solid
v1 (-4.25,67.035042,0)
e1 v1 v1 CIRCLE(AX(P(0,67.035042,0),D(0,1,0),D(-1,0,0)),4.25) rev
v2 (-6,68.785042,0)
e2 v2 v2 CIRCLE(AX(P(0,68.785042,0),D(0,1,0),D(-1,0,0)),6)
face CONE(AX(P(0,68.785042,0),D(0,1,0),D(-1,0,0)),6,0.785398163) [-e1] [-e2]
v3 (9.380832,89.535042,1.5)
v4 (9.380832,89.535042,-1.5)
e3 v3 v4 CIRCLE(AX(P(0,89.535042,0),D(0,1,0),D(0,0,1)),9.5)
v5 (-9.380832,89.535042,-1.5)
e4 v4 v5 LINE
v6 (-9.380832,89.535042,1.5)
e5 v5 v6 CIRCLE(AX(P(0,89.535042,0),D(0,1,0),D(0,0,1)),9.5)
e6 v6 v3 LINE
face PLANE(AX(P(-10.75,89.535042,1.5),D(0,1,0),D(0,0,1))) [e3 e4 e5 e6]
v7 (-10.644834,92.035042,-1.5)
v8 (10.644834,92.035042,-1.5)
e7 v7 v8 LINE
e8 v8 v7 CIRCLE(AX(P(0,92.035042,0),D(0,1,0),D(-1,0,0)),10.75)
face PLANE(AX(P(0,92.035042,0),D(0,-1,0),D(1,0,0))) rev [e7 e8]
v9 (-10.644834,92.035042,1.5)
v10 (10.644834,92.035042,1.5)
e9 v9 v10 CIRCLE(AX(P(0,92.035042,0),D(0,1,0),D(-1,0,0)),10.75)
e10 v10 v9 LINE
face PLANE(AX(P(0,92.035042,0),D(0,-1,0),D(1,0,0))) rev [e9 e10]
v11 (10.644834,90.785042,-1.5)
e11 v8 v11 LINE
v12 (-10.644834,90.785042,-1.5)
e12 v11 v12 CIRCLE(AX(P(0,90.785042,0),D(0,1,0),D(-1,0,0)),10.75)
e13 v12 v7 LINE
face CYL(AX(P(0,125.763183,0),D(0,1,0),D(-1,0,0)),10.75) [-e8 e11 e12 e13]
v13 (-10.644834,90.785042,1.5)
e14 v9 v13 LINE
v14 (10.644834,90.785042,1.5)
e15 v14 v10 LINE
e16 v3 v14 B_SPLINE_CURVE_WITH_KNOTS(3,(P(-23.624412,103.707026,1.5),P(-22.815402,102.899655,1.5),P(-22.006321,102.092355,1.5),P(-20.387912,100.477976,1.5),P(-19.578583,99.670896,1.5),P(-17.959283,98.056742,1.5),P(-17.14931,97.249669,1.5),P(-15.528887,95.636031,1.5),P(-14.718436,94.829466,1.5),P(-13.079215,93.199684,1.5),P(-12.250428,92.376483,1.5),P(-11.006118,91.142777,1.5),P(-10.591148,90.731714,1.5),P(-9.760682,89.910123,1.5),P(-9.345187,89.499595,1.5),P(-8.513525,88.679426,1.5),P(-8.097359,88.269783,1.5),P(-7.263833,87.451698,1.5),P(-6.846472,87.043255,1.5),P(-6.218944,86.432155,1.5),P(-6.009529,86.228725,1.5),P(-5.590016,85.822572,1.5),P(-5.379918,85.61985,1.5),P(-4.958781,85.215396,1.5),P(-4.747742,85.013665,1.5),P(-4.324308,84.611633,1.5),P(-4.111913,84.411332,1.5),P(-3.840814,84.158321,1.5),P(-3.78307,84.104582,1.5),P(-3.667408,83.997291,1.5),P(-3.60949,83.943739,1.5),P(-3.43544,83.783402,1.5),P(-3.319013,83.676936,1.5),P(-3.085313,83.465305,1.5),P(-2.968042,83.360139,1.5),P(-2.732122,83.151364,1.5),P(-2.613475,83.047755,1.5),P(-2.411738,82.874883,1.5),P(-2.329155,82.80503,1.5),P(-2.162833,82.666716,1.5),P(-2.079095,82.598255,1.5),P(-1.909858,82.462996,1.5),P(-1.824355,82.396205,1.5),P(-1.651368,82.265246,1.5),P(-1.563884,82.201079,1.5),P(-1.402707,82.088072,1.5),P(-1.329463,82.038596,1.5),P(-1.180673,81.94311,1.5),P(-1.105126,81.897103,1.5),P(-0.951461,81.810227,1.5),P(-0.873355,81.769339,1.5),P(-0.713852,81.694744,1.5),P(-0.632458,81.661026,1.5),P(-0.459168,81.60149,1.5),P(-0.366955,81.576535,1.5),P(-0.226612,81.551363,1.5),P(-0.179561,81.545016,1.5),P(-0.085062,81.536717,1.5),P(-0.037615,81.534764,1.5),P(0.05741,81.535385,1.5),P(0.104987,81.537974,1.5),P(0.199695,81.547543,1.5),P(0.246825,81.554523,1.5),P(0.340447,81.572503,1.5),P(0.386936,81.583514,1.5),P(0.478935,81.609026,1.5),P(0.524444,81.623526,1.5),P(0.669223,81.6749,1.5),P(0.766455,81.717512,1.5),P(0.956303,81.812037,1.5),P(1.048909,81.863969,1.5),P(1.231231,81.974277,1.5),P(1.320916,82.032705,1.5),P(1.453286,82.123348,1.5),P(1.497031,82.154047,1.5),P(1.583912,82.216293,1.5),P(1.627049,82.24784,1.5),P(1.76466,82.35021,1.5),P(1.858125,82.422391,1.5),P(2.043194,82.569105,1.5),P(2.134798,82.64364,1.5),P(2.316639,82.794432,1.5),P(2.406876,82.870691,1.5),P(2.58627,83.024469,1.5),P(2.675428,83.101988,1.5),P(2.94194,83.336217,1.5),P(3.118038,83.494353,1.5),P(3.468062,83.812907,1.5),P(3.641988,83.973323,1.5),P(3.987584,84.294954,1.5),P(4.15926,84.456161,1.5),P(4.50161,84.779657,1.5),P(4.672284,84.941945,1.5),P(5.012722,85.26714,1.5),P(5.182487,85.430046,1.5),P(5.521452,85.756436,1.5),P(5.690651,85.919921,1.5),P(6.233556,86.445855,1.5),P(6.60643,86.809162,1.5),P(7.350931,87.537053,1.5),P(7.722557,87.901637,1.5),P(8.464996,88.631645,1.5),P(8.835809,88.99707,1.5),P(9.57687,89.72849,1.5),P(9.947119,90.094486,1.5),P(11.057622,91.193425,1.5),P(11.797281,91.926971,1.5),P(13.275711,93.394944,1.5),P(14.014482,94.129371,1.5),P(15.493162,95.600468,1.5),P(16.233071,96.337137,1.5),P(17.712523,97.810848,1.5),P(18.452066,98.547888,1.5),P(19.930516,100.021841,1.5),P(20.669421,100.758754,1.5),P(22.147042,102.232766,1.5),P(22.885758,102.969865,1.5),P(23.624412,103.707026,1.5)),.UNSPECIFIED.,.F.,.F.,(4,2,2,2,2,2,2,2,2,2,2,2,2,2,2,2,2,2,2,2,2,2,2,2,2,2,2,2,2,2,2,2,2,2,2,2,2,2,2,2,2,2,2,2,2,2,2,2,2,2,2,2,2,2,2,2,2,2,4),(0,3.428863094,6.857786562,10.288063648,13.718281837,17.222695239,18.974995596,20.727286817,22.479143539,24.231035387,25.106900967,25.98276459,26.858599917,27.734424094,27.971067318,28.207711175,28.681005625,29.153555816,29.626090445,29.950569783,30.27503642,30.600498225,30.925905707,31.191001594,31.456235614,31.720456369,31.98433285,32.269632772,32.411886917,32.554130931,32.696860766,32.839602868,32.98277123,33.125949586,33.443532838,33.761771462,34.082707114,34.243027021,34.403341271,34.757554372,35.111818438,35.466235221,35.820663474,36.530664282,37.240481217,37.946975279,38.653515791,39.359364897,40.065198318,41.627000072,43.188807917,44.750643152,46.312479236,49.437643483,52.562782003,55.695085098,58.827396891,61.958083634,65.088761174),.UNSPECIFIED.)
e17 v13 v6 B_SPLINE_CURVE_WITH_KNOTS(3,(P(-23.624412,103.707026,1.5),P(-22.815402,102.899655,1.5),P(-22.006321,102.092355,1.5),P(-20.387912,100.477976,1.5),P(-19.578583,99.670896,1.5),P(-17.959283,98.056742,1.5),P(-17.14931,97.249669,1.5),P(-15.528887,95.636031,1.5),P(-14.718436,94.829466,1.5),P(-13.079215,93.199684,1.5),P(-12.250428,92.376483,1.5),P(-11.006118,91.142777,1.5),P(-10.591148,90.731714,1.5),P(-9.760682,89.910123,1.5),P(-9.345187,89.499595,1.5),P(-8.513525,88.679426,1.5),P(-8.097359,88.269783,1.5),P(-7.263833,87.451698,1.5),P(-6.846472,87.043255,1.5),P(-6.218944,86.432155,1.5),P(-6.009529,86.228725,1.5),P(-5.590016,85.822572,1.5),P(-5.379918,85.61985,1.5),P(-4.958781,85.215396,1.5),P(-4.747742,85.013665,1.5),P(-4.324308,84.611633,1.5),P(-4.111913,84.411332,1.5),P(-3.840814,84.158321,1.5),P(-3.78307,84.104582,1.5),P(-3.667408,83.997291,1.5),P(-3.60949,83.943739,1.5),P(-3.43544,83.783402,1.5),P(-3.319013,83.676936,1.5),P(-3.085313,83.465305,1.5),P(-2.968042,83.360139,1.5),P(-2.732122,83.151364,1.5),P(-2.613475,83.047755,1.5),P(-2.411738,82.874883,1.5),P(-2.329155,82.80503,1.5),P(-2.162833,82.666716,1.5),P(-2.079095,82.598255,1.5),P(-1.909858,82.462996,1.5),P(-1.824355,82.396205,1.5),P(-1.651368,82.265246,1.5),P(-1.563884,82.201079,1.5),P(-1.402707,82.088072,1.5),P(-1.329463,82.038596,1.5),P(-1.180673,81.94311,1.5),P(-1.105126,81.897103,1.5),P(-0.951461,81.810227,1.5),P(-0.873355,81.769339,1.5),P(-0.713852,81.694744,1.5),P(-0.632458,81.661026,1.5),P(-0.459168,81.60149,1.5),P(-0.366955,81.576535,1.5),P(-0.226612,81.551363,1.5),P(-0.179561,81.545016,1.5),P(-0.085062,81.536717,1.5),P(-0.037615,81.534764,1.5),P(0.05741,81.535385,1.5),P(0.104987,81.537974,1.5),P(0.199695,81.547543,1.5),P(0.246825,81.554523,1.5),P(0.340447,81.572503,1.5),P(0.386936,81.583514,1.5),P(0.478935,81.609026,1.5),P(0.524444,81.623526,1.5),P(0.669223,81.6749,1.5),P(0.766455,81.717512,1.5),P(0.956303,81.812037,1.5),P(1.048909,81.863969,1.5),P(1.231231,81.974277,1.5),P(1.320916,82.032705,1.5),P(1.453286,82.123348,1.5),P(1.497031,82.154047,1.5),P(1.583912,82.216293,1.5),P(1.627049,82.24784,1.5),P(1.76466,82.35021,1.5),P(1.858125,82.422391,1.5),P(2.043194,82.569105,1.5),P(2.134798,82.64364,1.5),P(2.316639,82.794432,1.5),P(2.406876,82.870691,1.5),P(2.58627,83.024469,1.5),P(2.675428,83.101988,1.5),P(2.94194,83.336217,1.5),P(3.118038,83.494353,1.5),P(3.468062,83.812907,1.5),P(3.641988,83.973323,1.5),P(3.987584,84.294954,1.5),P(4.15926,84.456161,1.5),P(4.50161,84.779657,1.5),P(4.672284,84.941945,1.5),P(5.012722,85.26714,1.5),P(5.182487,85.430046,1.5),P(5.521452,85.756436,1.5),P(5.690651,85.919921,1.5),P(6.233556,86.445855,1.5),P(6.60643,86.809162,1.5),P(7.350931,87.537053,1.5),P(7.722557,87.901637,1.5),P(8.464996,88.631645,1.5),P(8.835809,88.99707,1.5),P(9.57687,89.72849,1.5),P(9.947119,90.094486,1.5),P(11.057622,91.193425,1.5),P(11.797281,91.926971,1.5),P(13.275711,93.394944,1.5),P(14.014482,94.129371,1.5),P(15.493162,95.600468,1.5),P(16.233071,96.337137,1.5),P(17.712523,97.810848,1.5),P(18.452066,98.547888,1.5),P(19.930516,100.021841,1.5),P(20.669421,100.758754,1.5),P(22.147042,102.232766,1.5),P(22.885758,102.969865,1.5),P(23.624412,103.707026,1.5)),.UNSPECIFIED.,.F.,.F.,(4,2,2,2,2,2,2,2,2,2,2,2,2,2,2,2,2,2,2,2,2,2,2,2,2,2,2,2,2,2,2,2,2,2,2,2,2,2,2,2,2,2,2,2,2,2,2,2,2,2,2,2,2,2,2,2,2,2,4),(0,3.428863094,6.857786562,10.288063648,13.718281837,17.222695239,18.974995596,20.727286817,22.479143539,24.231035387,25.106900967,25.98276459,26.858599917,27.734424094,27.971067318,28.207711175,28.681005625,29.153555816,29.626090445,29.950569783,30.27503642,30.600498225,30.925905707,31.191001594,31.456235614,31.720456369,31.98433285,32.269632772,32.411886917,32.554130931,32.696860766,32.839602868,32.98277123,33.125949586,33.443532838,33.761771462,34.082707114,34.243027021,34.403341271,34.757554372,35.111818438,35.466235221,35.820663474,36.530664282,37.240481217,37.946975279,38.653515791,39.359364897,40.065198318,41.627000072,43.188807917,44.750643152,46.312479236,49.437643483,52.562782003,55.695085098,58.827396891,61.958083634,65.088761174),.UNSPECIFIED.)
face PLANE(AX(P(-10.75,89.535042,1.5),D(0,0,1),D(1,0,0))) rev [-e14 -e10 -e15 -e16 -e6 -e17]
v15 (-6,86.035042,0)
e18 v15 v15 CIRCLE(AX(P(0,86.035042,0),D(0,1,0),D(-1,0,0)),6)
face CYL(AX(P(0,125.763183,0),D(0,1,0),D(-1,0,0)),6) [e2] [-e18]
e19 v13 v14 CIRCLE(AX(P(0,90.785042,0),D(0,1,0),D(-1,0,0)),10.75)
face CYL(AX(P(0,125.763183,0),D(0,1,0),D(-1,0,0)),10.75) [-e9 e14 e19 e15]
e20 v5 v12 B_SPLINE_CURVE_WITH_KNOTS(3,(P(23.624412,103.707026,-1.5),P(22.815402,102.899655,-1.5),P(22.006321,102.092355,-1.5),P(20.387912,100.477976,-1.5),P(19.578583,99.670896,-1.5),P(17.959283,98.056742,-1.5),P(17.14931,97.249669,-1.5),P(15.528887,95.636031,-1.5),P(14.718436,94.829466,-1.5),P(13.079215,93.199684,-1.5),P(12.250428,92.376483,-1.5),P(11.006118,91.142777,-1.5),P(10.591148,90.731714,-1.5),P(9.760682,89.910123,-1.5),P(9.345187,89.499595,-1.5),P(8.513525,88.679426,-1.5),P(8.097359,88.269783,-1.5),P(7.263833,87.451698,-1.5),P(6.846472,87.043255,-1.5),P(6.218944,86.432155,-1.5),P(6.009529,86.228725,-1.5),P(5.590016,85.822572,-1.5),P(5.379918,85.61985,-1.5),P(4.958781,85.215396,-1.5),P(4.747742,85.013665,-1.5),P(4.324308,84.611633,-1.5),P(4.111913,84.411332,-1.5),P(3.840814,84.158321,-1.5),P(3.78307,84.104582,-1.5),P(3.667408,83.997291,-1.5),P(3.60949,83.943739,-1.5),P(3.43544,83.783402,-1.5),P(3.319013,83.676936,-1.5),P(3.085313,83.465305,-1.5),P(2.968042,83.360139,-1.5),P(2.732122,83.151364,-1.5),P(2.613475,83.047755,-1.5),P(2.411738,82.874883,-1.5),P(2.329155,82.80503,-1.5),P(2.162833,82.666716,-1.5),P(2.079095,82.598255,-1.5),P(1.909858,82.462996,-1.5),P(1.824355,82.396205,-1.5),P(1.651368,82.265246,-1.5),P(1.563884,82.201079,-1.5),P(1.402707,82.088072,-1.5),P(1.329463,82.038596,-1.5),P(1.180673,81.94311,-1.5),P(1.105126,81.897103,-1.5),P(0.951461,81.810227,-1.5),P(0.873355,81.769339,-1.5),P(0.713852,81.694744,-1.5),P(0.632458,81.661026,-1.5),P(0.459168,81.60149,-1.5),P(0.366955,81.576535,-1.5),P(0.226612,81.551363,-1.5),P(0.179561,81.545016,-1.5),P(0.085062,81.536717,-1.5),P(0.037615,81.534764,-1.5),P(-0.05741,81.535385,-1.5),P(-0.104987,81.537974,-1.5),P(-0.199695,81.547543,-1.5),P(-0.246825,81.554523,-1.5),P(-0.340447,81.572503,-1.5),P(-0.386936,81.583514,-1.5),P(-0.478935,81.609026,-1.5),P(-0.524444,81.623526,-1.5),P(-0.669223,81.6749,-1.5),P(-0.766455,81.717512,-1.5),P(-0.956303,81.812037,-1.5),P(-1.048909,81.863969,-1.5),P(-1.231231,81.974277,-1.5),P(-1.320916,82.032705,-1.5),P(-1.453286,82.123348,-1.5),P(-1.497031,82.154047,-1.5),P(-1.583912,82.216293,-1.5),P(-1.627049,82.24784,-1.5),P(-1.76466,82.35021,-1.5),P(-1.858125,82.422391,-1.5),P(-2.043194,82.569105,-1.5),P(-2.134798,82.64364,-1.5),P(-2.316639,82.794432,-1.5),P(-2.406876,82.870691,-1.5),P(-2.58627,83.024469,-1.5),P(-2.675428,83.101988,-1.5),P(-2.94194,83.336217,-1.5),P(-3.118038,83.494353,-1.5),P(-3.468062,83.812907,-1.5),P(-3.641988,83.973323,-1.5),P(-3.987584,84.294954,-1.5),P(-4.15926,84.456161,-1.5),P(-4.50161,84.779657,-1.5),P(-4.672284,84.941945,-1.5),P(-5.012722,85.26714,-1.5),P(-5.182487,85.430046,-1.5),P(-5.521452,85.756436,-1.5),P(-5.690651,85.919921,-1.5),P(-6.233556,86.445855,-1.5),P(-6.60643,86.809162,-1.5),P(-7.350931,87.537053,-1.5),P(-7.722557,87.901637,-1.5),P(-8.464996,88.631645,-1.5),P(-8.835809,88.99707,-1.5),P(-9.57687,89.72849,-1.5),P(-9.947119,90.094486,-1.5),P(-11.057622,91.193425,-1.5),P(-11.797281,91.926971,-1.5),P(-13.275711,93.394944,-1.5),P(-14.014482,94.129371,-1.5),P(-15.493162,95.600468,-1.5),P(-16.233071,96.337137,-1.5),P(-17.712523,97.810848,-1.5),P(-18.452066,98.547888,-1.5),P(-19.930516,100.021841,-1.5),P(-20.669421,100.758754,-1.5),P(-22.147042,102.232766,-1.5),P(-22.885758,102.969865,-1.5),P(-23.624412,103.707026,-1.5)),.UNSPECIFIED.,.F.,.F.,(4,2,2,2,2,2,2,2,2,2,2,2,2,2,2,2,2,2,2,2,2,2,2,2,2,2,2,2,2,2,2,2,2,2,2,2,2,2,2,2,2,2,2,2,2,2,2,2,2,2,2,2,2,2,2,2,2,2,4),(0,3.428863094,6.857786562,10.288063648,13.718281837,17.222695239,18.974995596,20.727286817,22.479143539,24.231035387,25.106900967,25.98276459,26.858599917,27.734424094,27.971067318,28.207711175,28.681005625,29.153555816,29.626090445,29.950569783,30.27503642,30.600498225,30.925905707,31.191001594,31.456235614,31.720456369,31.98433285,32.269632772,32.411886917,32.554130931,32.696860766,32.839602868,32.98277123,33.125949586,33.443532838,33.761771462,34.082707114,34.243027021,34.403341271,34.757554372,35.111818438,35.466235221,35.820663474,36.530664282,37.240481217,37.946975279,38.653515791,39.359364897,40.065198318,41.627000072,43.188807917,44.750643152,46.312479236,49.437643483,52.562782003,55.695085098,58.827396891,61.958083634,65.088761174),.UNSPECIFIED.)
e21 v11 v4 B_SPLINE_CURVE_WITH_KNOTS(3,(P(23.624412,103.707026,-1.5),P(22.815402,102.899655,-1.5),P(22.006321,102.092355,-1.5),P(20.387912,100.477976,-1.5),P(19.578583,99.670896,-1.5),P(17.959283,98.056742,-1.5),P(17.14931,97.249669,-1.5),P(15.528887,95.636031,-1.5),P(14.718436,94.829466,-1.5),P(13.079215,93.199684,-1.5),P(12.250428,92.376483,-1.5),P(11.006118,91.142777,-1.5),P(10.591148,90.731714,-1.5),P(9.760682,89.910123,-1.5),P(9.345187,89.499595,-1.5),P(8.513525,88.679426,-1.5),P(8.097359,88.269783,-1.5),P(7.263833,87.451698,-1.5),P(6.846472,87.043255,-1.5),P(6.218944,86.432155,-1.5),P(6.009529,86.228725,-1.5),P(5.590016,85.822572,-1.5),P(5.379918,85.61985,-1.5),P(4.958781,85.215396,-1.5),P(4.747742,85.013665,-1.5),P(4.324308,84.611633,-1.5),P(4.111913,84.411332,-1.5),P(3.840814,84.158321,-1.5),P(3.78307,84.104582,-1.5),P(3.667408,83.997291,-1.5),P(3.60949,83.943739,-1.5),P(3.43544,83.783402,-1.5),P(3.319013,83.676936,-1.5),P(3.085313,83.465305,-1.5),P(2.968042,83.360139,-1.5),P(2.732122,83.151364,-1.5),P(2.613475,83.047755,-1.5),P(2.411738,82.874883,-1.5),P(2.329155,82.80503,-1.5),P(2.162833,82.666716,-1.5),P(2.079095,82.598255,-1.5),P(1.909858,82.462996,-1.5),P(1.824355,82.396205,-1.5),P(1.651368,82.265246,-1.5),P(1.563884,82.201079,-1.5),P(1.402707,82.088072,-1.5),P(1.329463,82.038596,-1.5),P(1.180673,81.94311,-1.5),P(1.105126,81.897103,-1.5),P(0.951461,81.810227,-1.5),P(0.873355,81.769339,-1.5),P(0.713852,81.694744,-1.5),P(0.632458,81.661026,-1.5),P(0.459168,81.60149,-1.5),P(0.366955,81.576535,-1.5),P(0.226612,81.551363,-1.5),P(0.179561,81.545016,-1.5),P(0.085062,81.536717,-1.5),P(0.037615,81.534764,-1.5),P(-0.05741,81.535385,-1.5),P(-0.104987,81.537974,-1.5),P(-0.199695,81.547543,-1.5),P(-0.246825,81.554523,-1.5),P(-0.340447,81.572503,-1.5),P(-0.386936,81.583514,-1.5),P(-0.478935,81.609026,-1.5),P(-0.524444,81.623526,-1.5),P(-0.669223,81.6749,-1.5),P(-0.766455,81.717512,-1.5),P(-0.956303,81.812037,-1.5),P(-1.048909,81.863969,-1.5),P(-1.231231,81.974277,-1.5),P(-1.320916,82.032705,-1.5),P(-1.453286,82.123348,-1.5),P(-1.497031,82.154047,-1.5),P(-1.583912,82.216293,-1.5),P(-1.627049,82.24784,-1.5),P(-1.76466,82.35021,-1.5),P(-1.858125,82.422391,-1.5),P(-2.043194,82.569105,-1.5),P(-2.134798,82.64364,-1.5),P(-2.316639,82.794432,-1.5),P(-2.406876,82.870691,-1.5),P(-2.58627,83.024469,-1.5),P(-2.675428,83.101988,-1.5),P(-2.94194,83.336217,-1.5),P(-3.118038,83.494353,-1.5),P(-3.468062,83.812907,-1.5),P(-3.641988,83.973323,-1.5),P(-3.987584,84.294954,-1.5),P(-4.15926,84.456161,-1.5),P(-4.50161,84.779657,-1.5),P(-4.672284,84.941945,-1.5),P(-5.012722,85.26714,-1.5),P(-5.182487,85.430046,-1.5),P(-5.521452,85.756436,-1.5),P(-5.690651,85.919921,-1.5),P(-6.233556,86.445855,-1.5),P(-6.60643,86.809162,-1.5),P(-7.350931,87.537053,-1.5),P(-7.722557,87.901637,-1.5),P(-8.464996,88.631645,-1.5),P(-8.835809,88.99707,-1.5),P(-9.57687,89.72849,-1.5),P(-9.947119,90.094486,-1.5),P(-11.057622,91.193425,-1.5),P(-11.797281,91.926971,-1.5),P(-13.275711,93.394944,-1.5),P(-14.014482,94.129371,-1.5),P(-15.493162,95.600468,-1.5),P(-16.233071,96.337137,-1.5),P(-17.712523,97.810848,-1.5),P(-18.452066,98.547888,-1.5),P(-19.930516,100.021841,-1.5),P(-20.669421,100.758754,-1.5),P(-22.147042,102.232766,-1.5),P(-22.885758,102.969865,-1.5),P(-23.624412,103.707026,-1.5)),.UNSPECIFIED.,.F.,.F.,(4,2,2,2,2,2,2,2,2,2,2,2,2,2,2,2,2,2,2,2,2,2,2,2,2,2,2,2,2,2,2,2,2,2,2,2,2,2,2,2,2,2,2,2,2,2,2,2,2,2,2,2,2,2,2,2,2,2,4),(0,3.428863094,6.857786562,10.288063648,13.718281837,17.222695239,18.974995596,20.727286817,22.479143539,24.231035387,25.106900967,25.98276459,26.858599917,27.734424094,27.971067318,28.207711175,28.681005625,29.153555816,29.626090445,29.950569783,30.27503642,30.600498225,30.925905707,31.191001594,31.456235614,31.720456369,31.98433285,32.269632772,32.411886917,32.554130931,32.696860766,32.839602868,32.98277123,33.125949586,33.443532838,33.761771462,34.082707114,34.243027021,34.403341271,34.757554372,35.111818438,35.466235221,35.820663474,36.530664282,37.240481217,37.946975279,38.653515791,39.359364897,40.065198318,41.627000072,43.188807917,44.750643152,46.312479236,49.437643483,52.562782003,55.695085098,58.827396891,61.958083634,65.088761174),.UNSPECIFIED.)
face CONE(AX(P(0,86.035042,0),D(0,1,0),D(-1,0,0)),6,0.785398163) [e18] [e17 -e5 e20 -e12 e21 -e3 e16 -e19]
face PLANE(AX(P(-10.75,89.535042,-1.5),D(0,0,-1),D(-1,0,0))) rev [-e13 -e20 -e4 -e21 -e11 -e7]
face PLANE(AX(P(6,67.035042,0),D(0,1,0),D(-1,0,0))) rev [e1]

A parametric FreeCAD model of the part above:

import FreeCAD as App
import Part
import Sketcher
Q = App.Units.Quantity


def edges_at(feature, points):
    """Names of the edges that pass closest to the given points."""
    edges = feature.Shape.Edges
    near = lambda p: min(range(len(edges)), key=lambda i: edges[i].distToShape(Part.Vertex(*p))[0])
    return sorted({f"Edge{near(p) + 1}" for p in points})

doc = App.newDocument("Part")
body = doc.addObject("PartDesign::Body", "Body")

# Sketch on XY plane
sketch1 = body.newObject("Sketcher::SketchObject", "Sketch")
sketch1.AttachmentSupport = (doc.getObject("XY_Plane"), [""])
sketch1.MapMode = "FlatFace"
sketch1.addGeometry(Part.LineSegment(App.Vector(0, 92.035042, 0), App.Vector(0, 67.035042, 0)), False)
sketch1.addGeometry(Part.LineSegment(App.Vector(0, 67.035042, 0), App.Vector(6, 67.035042, 0)), False)
sketch1.addGeometry(Part.LineSegment(App.Vector(6, 67.035042, 0), App.Vector(6, 86.035042, 0)), False)
sketch1.addGeometry(Part.LineSegment(App.Vector(6, 86.035042, 0), App.Vector(10.75, 90.785042, 0)), False)
sketch1.addGeometry(Part.LineSegment(App.Vector(10.75, 90.785042, 0), App.Vector(10.75, 92.035042, 0)), False)
sketch1.addGeometry(Part.LineSegment(App.Vector(10.75, 92.035042, 0), App.Vector(0, 92.035042, 0)), False)
sketch1.addConstraint(Sketcher.Constraint("Coincident", 0, 2, 1, 1))
sketch1.addConstraint(Sketcher.Constraint("Coincident", 1, 2, 2, 1))
sketch1.addConstraint(Sketcher.Constraint("Coincident", 2, 2, 3, 1))
sketch1.addConstraint(Sketcher.Constraint("Coincident", 3, 2, 4, 1))
sketch1.addConstraint(Sketcher.Constraint("Coincident", 4, 2, 5, 1))
sketch1.addConstraint(Sketcher.Constraint("Coincident", 5, 2, 0, 1))
sketch1.addConstraint(Sketcher.Constraint("Vertical", 0))
sketch1.addConstraint(Sketcher.Constraint("Horizontal", 1))
sketch1.addConstraint(Sketcher.Constraint("Vertical", 2))
sketch1.addConstraint(Sketcher.Constraint("Vertical", 4))
sketch1.addConstraint(Sketcher.Constraint("Horizontal", 5))
sketch1.addConstraint(Sketcher.Constraint("PointOnObject", 0, 2, -2))
sketch1.addConstraint(Sketcher.Constraint("DistanceX", 1, 1, 1, 2, Q("6 mm")))
sketch1.addConstraint(Sketcher.Constraint("DistanceY", 0, 2, 0, 1, Q("25 mm")))
sketch1.addConstraint(Sketcher.Constraint("DistanceY", 2, 1, 2, 2, Q("19 mm")))
sketch1.addConstraint(Sketcher.Constraint("Angle", 3, Q("45 deg")))
sketch1.addConstraint(Sketcher.Constraint("DistanceX", 5, 2, 5, 1, Q("10.75 mm")))
sketch1.addConstraint(Sketcher.Constraint("DistanceY", -1, 1, 0, 2, Q("67.035042 mm")))
revolution = body.newObject("PartDesign::Revolution", "Revolution")
revolution.Profile = sketch1
revolution.ReferenceAxis = (sketch1, ["V_Axis"])
revolution.Angle = 360

# Sketch on XZ plane
sketch2 = body.newObject("Sketcher::SketchObject", "Sketch001")
sketch2.AttachmentSupport = (doc.getObject("XZ_Plane"), [""])
sketch2.MapMode = "FlatFace"
sketch2.AttachmentOffset = App.Placement(App.Vector(0, 0, -92.035042), App.Rotation())
sketch2.addGeometry(Part.LineSegment(App.Vector(10.75, 1.5, 0), App.Vector(10.75, -1.5, 0)), False)
sketch2.addGeometry(Part.LineSegment(App.Vector(10.75, -1.5, 0), App.Vector(-10.75, -1.5, 0)), False)
sketch2.addGeometry(Part.LineSegment(App.Vector(-10.75, -1.5, 0), App.Vector(-10.75, 1.5, 0)), False)
sketch2.addGeometry(Part.LineSegment(App.Vector(-10.75, 1.5, 0), App.Vector(10.75, 1.5, 0)), False)
sketch2.addConstraint(Sketcher.Constraint("Coincident", 0, 2, 1, 1))
sketch2.addConstraint(Sketcher.Constraint("Coincident", 1, 2, 2, 1))
sketch2.addConstraint(Sketcher.Constraint("Coincident", 2, 2, 3, 1))
sketch2.addConstraint(Sketcher.Constraint("Coincident", 3, 2, 0, 1))
sketch2.addConstraint(Sketcher.Constraint("Vertical", 0))
sketch2.addConstraint(Sketcher.Constraint("Horizontal", 1))
sketch2.addConstraint(Sketcher.Constraint("Vertical", 2))
sketch2.addConstraint(Sketcher.Constraint("Horizontal", 3))
sketch2.addConstraint(Sketcher.Constraint("Symmetric", 0, 2, 2, 2, -1, 1))
sketch2.addConstraint(Sketcher.Constraint("DistanceY", 0, 2, 0, 1, Q("3 mm")))
sketch2.addConstraint(Sketcher.Constraint("DistanceX", 1, 2, 1, 1, Q("21.5 mm")))
pocket1 = body.newObject("PartDesign::Pocket", "Pocket")
pocket1.Profile = sketch2
pocket1.Length = 2.5
pocket1.Reversed = True
doc.recompute()

chamfer = body.newObject("PartDesign::Chamfer", "Chamfer")
chamfer.Base = (pocket1, edges_at(pocket1, [(6, 67.035, 0)]))
chamfer.Size = 1.75

doc.recompute()
